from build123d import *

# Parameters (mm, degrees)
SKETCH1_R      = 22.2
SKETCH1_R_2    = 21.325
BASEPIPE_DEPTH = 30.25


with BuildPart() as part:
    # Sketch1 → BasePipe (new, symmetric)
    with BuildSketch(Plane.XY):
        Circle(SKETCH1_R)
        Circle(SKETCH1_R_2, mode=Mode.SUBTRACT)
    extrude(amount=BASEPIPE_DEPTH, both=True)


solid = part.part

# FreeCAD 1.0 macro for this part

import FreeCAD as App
import Part
import Sketcher

V = App.Vector
Q = App.Units.Quantity

doc = App.newDocument("Part")
params = doc.addObject("Spreadsheet::Sheet", "Params")
for row, (alias, value) in enumerate([
    ("sketch1_diameter", "44.4 mm"),
    ("sketch1_diameter2", "42.65 mm"),
    ("pad1_length", "60.5 mm"),
], start=1):
    params.set(f"A{row}", alias)
    params.set(f"B{row}", "=" + value)
    params.setAlias(f"B{row}", alias)

body = doc.addObject("PartDesign::Body", "Body")

# Sketch on XY plane
sketch1 = body.newObject("Sketcher::SketchObject", "Sketch")
sketch1.AttachmentSupport = (doc.getObject("XY_Plane"), [""])
sketch1.MapMode = "FlatFace"
sketch1.addGeometry(Part.Circle(V(0, 0, 0), V(0, 0, 1), 22), False)
sketch1.addGeometry(Part.Circle(V(0, 0, 0), V(0, 0, 1), 21), False)
sketch1.addConstraint(Sketcher.Constraint("Coincident", 0, 3, -1, 1))
sketch1.addConstraint(Sketcher.Constraint("Coincident", 1, 3, -1, 1))
sketch1.addConstraint(Sketcher.Constraint("Diameter", 0, Q("44.4 mm")))
sketch1.addConstraint(Sketcher.Constraint("Diameter", 1, Q("42.65 mm")))
sketch1.setExpression("Constraints[2]", "Params.sketch1_diameter")
sketch1.setExpression("Constraints[3]", "Params.sketch1_diameter2")
pad1 = body.newObject("PartDesign::Pad", "Pad")
pad1.Profile = sketch1
pad1.setExpression("Length", "Params.pad1_length")
pad1.Midplane = True

doc.recompute()
